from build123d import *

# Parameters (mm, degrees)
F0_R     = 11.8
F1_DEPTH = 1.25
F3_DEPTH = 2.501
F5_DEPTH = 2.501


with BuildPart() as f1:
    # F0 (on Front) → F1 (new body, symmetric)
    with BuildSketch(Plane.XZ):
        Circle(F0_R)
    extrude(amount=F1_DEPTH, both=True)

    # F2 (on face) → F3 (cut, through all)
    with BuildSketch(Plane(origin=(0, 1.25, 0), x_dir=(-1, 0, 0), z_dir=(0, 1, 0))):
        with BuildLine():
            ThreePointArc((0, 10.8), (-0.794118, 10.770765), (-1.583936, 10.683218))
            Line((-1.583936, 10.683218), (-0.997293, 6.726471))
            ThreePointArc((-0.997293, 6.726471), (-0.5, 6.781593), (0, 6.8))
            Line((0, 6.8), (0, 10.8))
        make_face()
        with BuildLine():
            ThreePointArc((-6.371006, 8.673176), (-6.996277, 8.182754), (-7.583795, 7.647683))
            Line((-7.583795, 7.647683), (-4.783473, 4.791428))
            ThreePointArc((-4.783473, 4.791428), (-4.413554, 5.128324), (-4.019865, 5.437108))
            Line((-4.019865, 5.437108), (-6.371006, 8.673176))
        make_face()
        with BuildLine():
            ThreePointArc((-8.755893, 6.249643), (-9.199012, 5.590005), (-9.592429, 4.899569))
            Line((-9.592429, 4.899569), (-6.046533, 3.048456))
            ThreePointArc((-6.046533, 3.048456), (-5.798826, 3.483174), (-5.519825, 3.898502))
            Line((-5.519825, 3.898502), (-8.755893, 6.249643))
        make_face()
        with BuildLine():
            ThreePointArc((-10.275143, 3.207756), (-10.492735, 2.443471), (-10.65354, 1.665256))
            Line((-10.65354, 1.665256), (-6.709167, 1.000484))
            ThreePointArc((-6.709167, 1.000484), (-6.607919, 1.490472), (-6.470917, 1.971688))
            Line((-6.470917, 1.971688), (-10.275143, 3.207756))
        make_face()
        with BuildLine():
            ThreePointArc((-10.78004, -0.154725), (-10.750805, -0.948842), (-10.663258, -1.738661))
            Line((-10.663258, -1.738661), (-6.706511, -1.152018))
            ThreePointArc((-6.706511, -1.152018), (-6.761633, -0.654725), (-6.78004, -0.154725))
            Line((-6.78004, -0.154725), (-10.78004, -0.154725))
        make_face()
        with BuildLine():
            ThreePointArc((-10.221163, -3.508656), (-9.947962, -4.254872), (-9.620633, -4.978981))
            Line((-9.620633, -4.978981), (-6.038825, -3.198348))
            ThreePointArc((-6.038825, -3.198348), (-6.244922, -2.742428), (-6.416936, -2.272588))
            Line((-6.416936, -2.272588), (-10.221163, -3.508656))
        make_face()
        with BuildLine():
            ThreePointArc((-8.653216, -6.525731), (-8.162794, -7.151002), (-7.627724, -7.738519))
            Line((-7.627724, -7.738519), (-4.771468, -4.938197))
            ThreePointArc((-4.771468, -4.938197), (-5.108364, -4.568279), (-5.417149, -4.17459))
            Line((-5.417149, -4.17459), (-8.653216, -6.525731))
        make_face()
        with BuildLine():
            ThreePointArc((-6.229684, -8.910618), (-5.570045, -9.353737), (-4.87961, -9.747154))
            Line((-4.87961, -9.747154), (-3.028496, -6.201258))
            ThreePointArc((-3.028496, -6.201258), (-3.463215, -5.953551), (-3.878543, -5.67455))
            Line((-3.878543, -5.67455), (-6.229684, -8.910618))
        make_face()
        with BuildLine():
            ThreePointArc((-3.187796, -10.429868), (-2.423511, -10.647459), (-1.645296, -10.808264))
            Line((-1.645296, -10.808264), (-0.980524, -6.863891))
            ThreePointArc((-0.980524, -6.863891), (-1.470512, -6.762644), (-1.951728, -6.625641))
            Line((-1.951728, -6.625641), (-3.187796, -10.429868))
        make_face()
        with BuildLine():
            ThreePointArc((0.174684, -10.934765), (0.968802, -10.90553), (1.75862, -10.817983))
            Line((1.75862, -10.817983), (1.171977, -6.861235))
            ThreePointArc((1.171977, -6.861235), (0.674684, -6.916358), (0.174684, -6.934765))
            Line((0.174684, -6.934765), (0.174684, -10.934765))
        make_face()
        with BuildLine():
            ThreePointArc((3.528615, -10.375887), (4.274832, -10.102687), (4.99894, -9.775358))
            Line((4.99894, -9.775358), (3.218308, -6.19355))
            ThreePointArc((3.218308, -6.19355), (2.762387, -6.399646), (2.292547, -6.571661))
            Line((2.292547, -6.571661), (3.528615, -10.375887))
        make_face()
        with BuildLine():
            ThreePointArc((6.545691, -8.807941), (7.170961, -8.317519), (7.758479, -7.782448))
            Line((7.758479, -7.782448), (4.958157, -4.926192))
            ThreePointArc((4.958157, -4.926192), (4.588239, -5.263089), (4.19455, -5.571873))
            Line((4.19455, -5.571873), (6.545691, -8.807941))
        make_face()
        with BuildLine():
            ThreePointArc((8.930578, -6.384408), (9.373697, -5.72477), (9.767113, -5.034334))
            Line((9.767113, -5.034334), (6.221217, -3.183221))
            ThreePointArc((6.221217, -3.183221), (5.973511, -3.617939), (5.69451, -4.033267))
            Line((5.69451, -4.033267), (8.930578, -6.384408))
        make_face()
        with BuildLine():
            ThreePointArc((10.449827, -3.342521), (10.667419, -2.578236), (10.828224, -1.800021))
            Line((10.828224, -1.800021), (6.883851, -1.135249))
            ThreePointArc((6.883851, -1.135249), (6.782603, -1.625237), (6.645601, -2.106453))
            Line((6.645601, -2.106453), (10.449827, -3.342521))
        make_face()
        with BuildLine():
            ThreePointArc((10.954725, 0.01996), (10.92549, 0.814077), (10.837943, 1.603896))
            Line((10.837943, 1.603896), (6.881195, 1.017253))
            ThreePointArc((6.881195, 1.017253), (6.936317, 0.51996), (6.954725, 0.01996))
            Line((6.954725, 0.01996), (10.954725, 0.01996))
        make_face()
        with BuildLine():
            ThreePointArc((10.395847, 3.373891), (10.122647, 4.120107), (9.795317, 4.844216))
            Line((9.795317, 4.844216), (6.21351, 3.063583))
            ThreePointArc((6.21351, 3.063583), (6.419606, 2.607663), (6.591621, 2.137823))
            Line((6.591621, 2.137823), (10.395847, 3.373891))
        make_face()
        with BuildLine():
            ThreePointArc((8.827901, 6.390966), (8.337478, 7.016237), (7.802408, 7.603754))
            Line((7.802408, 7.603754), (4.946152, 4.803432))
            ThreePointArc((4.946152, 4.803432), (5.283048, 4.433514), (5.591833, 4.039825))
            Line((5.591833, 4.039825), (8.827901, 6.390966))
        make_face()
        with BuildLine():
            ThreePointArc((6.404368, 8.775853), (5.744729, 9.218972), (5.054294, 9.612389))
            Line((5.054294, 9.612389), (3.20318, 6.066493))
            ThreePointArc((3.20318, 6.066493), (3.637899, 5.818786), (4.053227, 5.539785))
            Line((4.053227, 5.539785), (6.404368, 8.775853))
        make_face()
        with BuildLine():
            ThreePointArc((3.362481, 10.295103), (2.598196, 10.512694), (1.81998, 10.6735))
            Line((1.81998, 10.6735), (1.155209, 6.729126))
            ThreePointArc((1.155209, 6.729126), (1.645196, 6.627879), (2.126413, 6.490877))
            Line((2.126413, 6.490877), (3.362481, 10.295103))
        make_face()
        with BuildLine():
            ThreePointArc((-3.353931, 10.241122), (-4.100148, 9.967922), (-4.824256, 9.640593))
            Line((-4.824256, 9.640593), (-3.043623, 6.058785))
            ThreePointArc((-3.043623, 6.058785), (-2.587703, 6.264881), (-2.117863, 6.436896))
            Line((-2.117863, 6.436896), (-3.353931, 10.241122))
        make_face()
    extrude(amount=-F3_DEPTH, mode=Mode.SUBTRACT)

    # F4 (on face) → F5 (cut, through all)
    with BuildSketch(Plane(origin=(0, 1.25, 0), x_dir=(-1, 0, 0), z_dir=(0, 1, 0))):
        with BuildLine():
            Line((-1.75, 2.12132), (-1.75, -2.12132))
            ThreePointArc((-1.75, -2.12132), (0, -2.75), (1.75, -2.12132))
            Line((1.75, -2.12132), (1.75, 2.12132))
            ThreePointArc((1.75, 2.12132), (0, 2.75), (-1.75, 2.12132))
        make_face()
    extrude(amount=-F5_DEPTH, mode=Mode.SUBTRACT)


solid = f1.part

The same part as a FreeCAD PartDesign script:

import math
import FreeCAD as App
import Part
import Sketcher

V = App.Vector
Q = App.Units.Quantity

doc = App.newDocument("Part")
body = doc.addObject("PartDesign::Body", "Body")

# Sketch on XZ plane
sketch1 = body.newObject("Sketcher::SketchObject", "Sketch")
sketch1.AttachmentSupport = (doc.getObject("XZ_Plane"), [""])
sketch1.MapMode = "FlatFace"
sketch1.addGeometry(Part.Circle(V(0, 0, 0), V(0, 0, 1), 12), False)
sketch1.addConstraint([
    Sketcher.Constraint("Coincident", 0, 3, -1, 1),
    Sketcher.Constraint("Diameter", 0, 23.6),
])
pad1 = body.newObject("PartDesign::Pad", "Pad")
pad1.Profile = sketch1
pad1.Length = 2.5
pad1.Midplane = True

# Sketch on XZ plane
sketch2 = body.newObject("Sketcher::SketchObject", "Sketch001")
sketch2.AttachmentSupport = (doc.getObject("XZ_Plane"), [""])
sketch2.MapMode = "FlatFace"
sketch2.AttachmentOffset = App.Placement(V(0, 0, -1.25), App.Rotation())
sketch2.addGeometry([
    Part.ArcOfCircle(Part.Circle(V(0, 0, 0), V(0, 0, 1), 10.8), math.radians(81.57), math.radians(90)),  # 0
    Part.LineSegment(V(1.6, 10.7, 0), V(1, 6.7, 0)),  # 1
    Part.ArcOfCircle(Part.Circle(V(0, 0, 0), V(0, 0, 1), 6.8), math.radians(81.57), math.radians(90)),  # 2
    Part.LineSegment(V(0, 6.8, 0), V(0, 10.8, 0)),  # 3
    Part.ArcOfCircle(Part.Circle(V(0, -0.1, 0), V(0, 0, 1), 10.8), math.radians(45.57), math.radians(54)),  # 4
    Part.LineSegment(V(7.6, 7.6, 0), V(4.8, 4.8, 0)),  # 5
    Part.ArcOfCircle(Part.Circle(V(0, -0.1, 0), V(0, 0, 1), 6.8), math.radians(45.57), math.radians(54)),  # 6
    Part.LineSegment(V(4, 5.4, 0), V(6.4, 8.7, 0)),  # 7
    Part.ArcOfCircle(Part.Circle(V(0, -0.1, 0), V(0, 0, 1), 10.8), math.radians(27.57), math.radians(36)),  # 8
    Part.LineSegment(V(9.6, 4.9, 0), V(6, 3, 0)),  # 9
    Part.ArcOfCircle(Part.Circle(V(0, -0.1, 0), V(0, 0, 1), 6.8), math.radians(27.57), math.radians(36)),  # 10
    Part.LineSegment(V(5.5, 3.9, 0), V(8.8, 6.2, 0)),  # 11
    Part.ArcOfCircle(Part.Circle(V(0, -0.1, 0), V(0, 0, 1), 10.8), math.radians(9.57), math.radians(18)),  # 12
    Part.LineSegment(V(10.7, 1.7, 0), V(6.7, 1, 0)),  # 13
    Part.ArcOfCircle(Part.Circle(V(0, -0.1, 0), V(0, 0, 1), 6.8), math.radians(9.57), math.radians(18)),  # 14
    Part.LineSegment(V(6.5, 2, 0), V(10.3, 3.2, 0)),  # 15
    Part.ArcOfCircle(Part.Circle(V(0, -0.2, 0), V(0, 0, 1), 10.8), math.radians(-8.43), math.radians(0)),  # 16
    Part.LineSegment(V(10.7, -1.7, 0), V(6.7, -1.2, 0)),  # 17
    Part.ArcOfCircle(Part.Circle(V(0, -0.2, 0), V(0, 0, 1), 6.8), math.radians(-8.43), math.radians(0)),  # 18
    Part.LineSegment(V(6.8, -0.2, 0), V(10.8, -0.2, 0)),  # 19
    Part.ArcOfCircle(Part.Circle(V(-0.1, -0.2, 0), V(0, 0, 1), 10.8), math.radians(-26.43), math.radians(-18)),  # 20
    Part.LineSegment(V(9.6, -5, 0), V(6, -3.2, 0)),  # 21
    Part.ArcOfCircle(Part.Circle(V(0, -0.2, 0), V(0, 0, 1), 6.8), math.radians(-26.43), math.radians(-18)),  # 22
    Part.LineSegment(V(6.4, -2.3, 0), V(10.2, -3.5, 0)),  # 23
    Part.ArcOfCircle(Part.Circle(V(-0.1, -0.2, 0), V(0, 0, 1), 10.8), math.radians(-44.43), math.radians(-36)),  # 24
    Part.LineSegment(V(7.6, -7.7, 0), V(4.8, -4.9, 0)),  # 25
    Part.ArcOfCircle(Part.Circle(V(-0.1, -0.2, 0), V(0, 0, 1), 6.8), math.radians(-44.43), math.radians(-36)),  # 26
    Part.LineSegment(V(5.4, -4.2, 0), V(8.7, -6.5, 0)),  # 27
    Part.ArcOfCircle(Part.Circle(V(-0.1, -0.2, 0), V(0, 0, 1), 10.8), math.radians(-62.43), math.radians(-54)),  # 28
    Part.LineSegment(V(4.9, -9.7, 0), V(3, -6.2, 0)),  # 29
    Part.ArcOfCircle(Part.Circle(V(-0.1, -0.2, 0), V(0, 0, 1), 6.8), math.radians(-62.43), math.radians(-54)),  # 30
    Part.LineSegment(V(3.9, -5.7, 0), V(6.2, -8.9, 0)),  # 31
    Part.ArcOfCircle(Part.Circle(V(-0.1, -0.2, 0), V(0, 0, 1), 10.8), math.radians(-80.43), math.radians(-72)),  # 32
    Part.LineSegment(V(1.6, -10.8, 0), V(1, -6.9, 0)),  # 33
    Part.ArcOfCircle(Part.Circle(V(-0.1, -0.2, 0), V(0, 0, 1), 6.8), math.radians(-80.43), math.radians(-72)),  # 34
    Part.LineSegment(V(2, -6.6, 0), V(3.2, -10.4, 0)),  # 35
    Part.ArcOfCircle(Part.Circle(V(-0.2, -0.1, 0), V(0, 0, 1), 10.8), math.radians(-98.43), math.radians(-90)),  # 36
    Part.LineSegment(V(-1.8, -10.8, 0), V(-1.2, -6.9, 0)),  # 37
    Part.ArcOfCircle(Part.Circle(V(-0.2, -0.1, 0), V(0, 0, 1), 6.8), math.radians(-98.43), math.radians(-90)),  # 38
    Part.LineSegment(V(-0.2, -6.9, 0), V(-0.2, -10.9, 0)),  # 39
    Part.ArcOfCircle(Part.Circle(V(-0.2, -0.1, 0), V(0, 0, 1), 10.8), math.radians(-116.43), math.radians(-108)),  # 40
    Part.LineSegment(V(-5, -9.8, 0), V(-3.2, -6.2, 0)),  # 41
    Part.ArcOfCircle(Part.Circle(V(-0.2, -0.1, 0), V(0, 0, 1), 6.8), math.radians(-116.43), math.radians(-108)),  # 42
    Part.LineSegment(V(-2.3, -6.6, 0), V(-3.5, -10.4, 0)),  # 43
    Part.ArcOfCircle(Part.Circle(V(-0.2, -0.1, 0), V(0, 0, 1), 10.8), math.radians(-134.43), math.radians(-126)),  # 44
    Part.LineSegment(V(-7.8, -7.8, 0), V(-5, -4.9, 0)),  # 45
    Part.ArcOfCircle(Part.Circle(V(-0.2, -0.1, 0), V(0, 0, 1), 6.8), math.radians(-134.43), math.radians(-126)),  # 46
    Part.LineSegment(V(-4.2, -5.6, 0), V(-6.5, -8.8, 0)),  # 47
    Part.ArcOfCircle(Part.Circle(V(-0.2, 0, 0), V(0, 0, 1), 10.8), math.radians(-152.43), math.radians(-144)),  # 48
    Part.LineSegment(V(-9.8, -5, 0), V(-6.2, -3.2, 0)),  # 49
    Part.ArcOfCircle(Part.Circle(V(-0.2, 0, 0), V(0, 0, 1), 6.8), math.radians(-152.43), math.radians(-144)),  # 50
    Part.LineSegment(V(-5.7, -4, 0), V(-8.9, -6.4, 0)),  # 51
    Part.ArcOfCircle(Part.Circle(V(-0.2, 0, 0), V(0, 0, 1), 10.8), math.radians(-170.43), math.radians(-162)),  # 52
    Part.LineSegment(V(-10.8, -1.8, 0), V(-6.9, -1.1, 0)),  # 53
    Part.ArcOfCircle(Part.Circle(V(-0.2, 0, 0), V(0, 0, 1), 6.8), math.radians(-170.43), math.radians(-162)),  # 54
    Part.LineSegment(V(-6.6, -2.1, 0), V(-10.4, -3.3, 0)),  # 55
    Part.ArcOfCircle(Part.Circle(V(-0.2, 0, 0), V(0, 0, 1), 10.8), math.radians(171.57), math.radians(180)),  # 56
    Part.LineSegment(V(-10.8, 1.6, 0), V(-6.9, 1, 0)),  # 57
    Part.ArcOfCircle(Part.Circle(V(-0.2, 0, 0), V(0, 0, 1), 6.8), math.radians(171.57), math.radians(180)),  # 58
    Part.LineSegment(V(-7, 0, 0), V(-11, 0, 0)),  # 59
    Part.ArcOfCircle(Part.Circle(V(-0.1, 0, 0), V(0, 0, 1), 10.8), math.radians(153.57), math.radians(162)),  # 60
    Part.LineSegment(V(-9.8, 4.8, 0), V(-6.2, 3.1, 0)),  # 61
    Part.ArcOfCircle(Part.Circle(V(-0.1, 0, 0), V(0, 0, 1), 6.8), math.radians(153.57), math.radians(162)),  # 62
    Part.LineSegment(V(-6.6, 2.1, 0), V(-10.4, 3.4, 0)),  # 63
    Part.ArcOfCircle(Part.Circle(V(-0.1, 0, 0), V(0, 0, 1), 10.8), math.radians(135.57), math.radians(144)),  # 64
    Part.LineSegment(V(-7.8, 7.6, 0), V(-4.9, 4.8, 0)),  # 65
    Part.ArcOfCircle(Part.Circle(V(-0.1, 0, 0), V(0, 0, 1), 6.8), math.radians(135.57), math.radians(144)),  # 66
    Part.LineSegment(V(-5.6, 4, 0), V(-8.8, 6.4, 0)),  # 67
    Part.ArcOfCircle(Part.Circle(V(-0.1, 0, 0), V(0, 0, 1), 10.8), math.radians(117.57), math.radians(126)),  # 68
    Part.LineSegment(V(-5.1, 9.6, 0), V(-3.2, 6.1, 0)),  # 69
    Part.ArcOfCircle(Part.Circle(V(-0.1, 0, 0), V(0, 0, 1), 6.8), math.radians(117.57), math.radians(126)),  # 70
    Part.LineSegment(V(-4.1, 5.5, 0), V(-6.4, 8.8, 0)),  # 71
    Part.ArcOfCircle(Part.Circle(V(0, 0, 0), V(0, 0, 1), 10.8), math.radians(99.57), math.radians(108)),  # 72
    Part.LineSegment(V(-1.8, 10.7, 0), V(-1.2, 6.7, 0)),  # 73
    Part.ArcOfCircle(Part.Circle(V(0, 0, 0), V(0, 0, 1), 6.8), math.radians(99.57), math.radians(108)),  # 74
    Part.LineSegment(V(-2.1, 6.5, 0), V(-3.4, 10.3, 0)),  # 75
    Part.ArcOfCircle(Part.Circle(V(0, 0, 0), V(0, 0, 1), 10.8), math.radians(63.57), math.radians(72)),  # 76
    Part.LineSegment(V(4.8, 9.6, 0), V(3, 6.1, 0)),  # 77
    Part.ArcOfCircle(Part.Circle(V(0, 0, 0), V(0, 0, 1), 6.8), math.radians(63.57), math.radians(72)),  # 78
    Part.LineSegment(V(2.1, 6.4, 0), V(3.4, 10.2, 0)),  # 79
], False)
sketch2.addConstraint([
    Sketcher.Constraint("Coincident", 0, 1, 1, 1),
    Sketcher.Constraint("Coincident", 1, 2, 2, 1),
    Sketcher.Constraint("Coincident", 2, 2, 3, 1),
    Sketcher.Constraint("Coincident", 3, 2, 0, 2),
    Sketcher.Constraint("Coincident", 4, 1, 5, 1),
    Sketcher.Constraint("Coincident", 5, 2, 6, 1),
    Sketcher.Constraint("Coincident", 6, 2, 7, 1),
    Sketcher.Constraint("Coincident", 7, 2, 4, 2),
    Sketcher.Constraint("Coincident", 8, 1, 9, 1),
    Sketcher.Constraint("Coincident", 9, 2, 10, 1),
    Sketcher.Constraint("Coincident", 10, 2, 11, 1),
    Sketcher.Constraint("Coincident", 11, 2, 8, 2),
    Sketcher.Constraint("Coincident", 12, 1, 13, 1),
    Sketcher.Constraint("Coincident", 13, 2, 14, 1),
    Sketcher.Constraint("Coincident", 14, 2, 15, 1),
    Sketcher.Constraint("Coincident", 15, 2, 12, 2),
    Sketcher.Constraint("Coincident", 16, 1, 17, 1),
    Sketcher.Constraint("Coincident", 17, 2, 18, 1),
    Sketcher.Constraint("Coincident", 18, 2, 19, 1),
    Sketcher.Constraint("Coincident", 19, 2, 16, 2),
    Sketcher.Constraint("Coincident", 20, 1, 21, 1),
    Sketcher.Constraint("Coincident", 21, 2, 22, 1),
    Sketcher.Constraint("Coincident", 22, 2, 23, 1),
    Sketcher.Constraint("Coincident", 23, 2, 20, 2),
    Sketcher.Constraint("Coincident", 24, 1, 25, 1),
    Sketcher.Constraint("Coincident", 25, 2, 26, 1),
    Sketcher.Constraint("Coincident", 26, 2, 27, 1),
    Sketcher.Constraint("Coincident", 27, 2, 24, 2),
    Sketcher.Constraint("Coincident", 28, 1, 29, 1),
    Sketcher.Constraint("Coincident", 29, 2, 30, 1),
    Sketcher.Constraint("Coincident", 30, 2, 31, 1),
    Sketcher.Constraint("Coincident", 31, 2, 28, 2),
    Sketcher.Constraint("Coincident", 32, 1, 33, 1),
    Sketcher.Constraint("Coincident", 33, 2, 34, 1),
    Sketcher.Constraint("Coincident", 34, 2, 35, 1),
    Sketcher.Constraint("Coincident", 35, 2, 32, 2),
    Sketcher.Constraint("Coincident", 36, 1, 37, 1),
    Sketcher.Constraint("Coincident", 37, 2, 38, 1),
    Sketcher.Constraint("Coincident", 38, 2, 39, 1),
    Sketcher.Constraint("Coincident", 39, 2, 36, 2),
    Sketcher.Constraint("Coincident", 40, 1, 41, 1),
    Sketcher.Constraint("Coincident", 41, 2, 42, 1),
    Sketcher.Constraint("Coincident", 42, 2, 43, 1),
    Sketcher.Constraint("Coincident", 43, 2, 40, 2),
    Sketcher.Constraint("Coincident", 44, 1, 45, 1),
    Sketcher.Constraint("Coincident", 45, 2, 46, 1),
    Sketcher.Constraint("Coincident", 46, 2, 47, 1),
    Sketcher.Constraint("Coincident", 47, 2, 44, 2),
    Sketcher.Constraint("Coincident", 48, 1, 49, 1),
    Sketcher.Constraint("Coincident", 49, 2, 50, 1),
    Sketcher.Constraint("Coincident", 50, 2, 51, 1),
    Sketcher.Constraint("Coincident", 51, 2, 48, 2),
    Sketcher.Constraint("Coincident", 52, 1, 53, 1),
    Sketcher.Constraint("Coincident", 53, 2, 54, 1),
    Sketcher.Constraint("Coincident", 54, 2, 55, 1),
    Sketcher.Constraint("Coincident", 55, 2, 52, 2),
    Sketcher.Constraint("Coincident", 56, 1, 57, 1),
    Sketcher.Constraint("Coincident", 57, 2, 58, 1),
    Sketcher.Constraint("Coincident", 58, 2, 59, 1),
    Sketcher.Constraint("Coincident", 59, 2, 56, 2),
    Sketcher.Constraint("Coincident", 60, 1, 61, 1),
    Sketcher.Constraint("Coincident", 61, 2, 62, 1),
    Sketcher.Constraint("Coincident", 62, 2, 63, 1),
    Sketcher.Constraint("Coincident", 63, 2, 60, 2),
    Sketcher.Constraint("Coincident", 64, 1, 65, 1),
    Sketcher.Constraint("Coincident", 65, 2, 66, 1),
    Sketcher.Constraint("Coincident", 66, 2, 67, 1),
    Sketcher.Constraint("Coincident", 67, 2, 64, 2),
    Sketcher.Constraint("Coincident", 68, 1, 69, 1),
    Sketcher.Constraint("Coincident", 69, 2, 70, 1),
    Sketcher.Constraint("Coincident", 70, 2, 71, 1),
    Sketcher.Constraint("Coincident", 71, 2, 68, 2),
    Sketcher.Constraint("Coincident", 72, 1, 73, 1),
    Sketcher.Constraint("Coincident", 73, 2, 74, 1),
    Sketcher.Constraint("Coincident", 74, 2, 75, 1),
    Sketcher.Constraint("Coincident", 75, 2, 72, 2),
    Sketcher.Constraint("Coincident", 76, 1, 77, 1),
    Sketcher.Constraint("Coincident", 77, 2, 78, 1),
    Sketcher.Constraint("Coincident", 78, 2, 79, 1),
    Sketcher.Constraint("Coincident", 79, 2, 76, 2),
    Sketcher.Constraint("Vertical", 3),
    Sketcher.Constraint("Horizontal", 19),
    Sketcher.Constraint("Vertical", 39),
    Sketcher.Constraint("Horizontal", 59),
    Sketcher.Constraint("Coincident", 66, 3, 64, 3),
    Sketcher.Constraint("Equal", 2, 18),
    Sketcher.Constraint("Equal", 0, 36),
    Sketcher.Constraint("Equal", 12, 52),
    Sketcher.Constraint("Equal", 14, 54),
    Sketcher.Constraint("Equal", 16, 56),
    Sketcher.Constraint("Equal", 26, 66),
    Sketcher.Constraint("Equal", 28, 68),
    Sketcher.Constraint("Equal", 30, 70),
    Sketcher.Constraint("Equal", 40, 76),
    Sketcher.Constraint("Equal", 62, 78),
    Sketcher.Constraint("PointOnObject", 2, 2, -2),
    Sketcher.Constraint("Perpendicular", 1, 17),
    Sketcher.Constraint("Perpendicular", 5, 25),
    Sketcher.Constraint("Perpendicular", 7, 27),
    Sketcher.Constraint("Perpendicular", 9, 29),
    Sketcher.Constraint("Perpendicular", 11, 31),
    Sketcher.Constraint("Perpendicular", 13, 33),
    Sketcher.Constraint("Perpendicular", 15, 35),
    Sketcher.Constraint("Perpendicular", 17, 37),
    Sketcher.Constraint("Perpendicular", 21, 41),
    Sketcher.Constraint("Perpendicular", 23, 43),
    Sketcher.Constraint("Perpendicular", 25, 45),
    Sketcher.Constraint("Perpendicular", 27, 47),
    Sketcher.Constraint("Perpendicular", 29, 49),
    Sketcher.Constraint("Perpendicular", 31, 51),
    Sketcher.Constraint("Perpendicular", 33, 53),
    Sketcher.Constraint("Perpendicular", 35, 55),
    Sketcher.Constraint("Perpendicular", 37, 57),
    Sketcher.Constraint("Perpendicular", 41, 61),
    Sketcher.Constraint("Perpendicular", 43, 63),
    Sketcher.Constraint("Perpendicular", 45, 65),
    Sketcher.Constraint("Perpendicular", 47, 67),
    Sketcher.Constraint("Perpendicular", 49, 69),
    Sketcher.Constraint("Perpendicular", 51, 71),
    Sketcher.Constraint("Perpendicular", 53, 73),
    Sketcher.Constraint("Perpendicular", 55, 75),
    Sketcher.Constraint("Perpendicular", 61, 77),
    Sketcher.Constraint("Perpendicular", 63, 79),
    Sketcher.Constraint("Horizontal", 16, 3, 18, 2),
    Sketcher.Constraint("Horizontal", 56, 3, 58, 2),
    Sketcher.Constraint("Vertical", 0, 3, 2, 3),
    Sketcher.Constraint("Equal", 19, 59),
    Sketcher.Constraint("Equal", 59, 3),
    Sketcher.Constraint("Equal", 3, 39),
    Sketcher.Constraint("Equal", 1, 5),
    Sketcher.Constraint("Equal", 5, 7),
    Sketcher.Constraint("Equal", 7, 9),
    Sketcher.Constraint("Equal", 9, 11),
    Sketcher.Constraint("Equal", 11, 13),
    Sketcher.Constraint("Equal", 13, 15),
    Sketcher.Constraint("Equal", 15, 17),
    Sketcher.Constraint("Equal", 17, 21),
    Sketcher.Constraint("Equal", 21, 23),
    Sketcher.Constraint("Equal", 23, 25),
    Sketcher.Constraint("Equal", 25, 27),
    Sketcher.Constraint("Equal", 27, 29),
    Sketcher.Constraint("Equal", 29, 31),
    Sketcher.Constraint("Equal", 31, 33),
    Sketcher.Constraint("Equal", 33, 35),
    Sketcher.Constraint("Equal", 35, 37),
    Sketcher.Constraint("Equal", 37, 41),
    Sketcher.Constraint("Equal", 41, 43),
    Sketcher.Constraint("Equal", 43, 45),
    Sketcher.Constraint("Equal", 45, 47),
    Sketcher.Constraint("Equal", 47, 49),
    Sketcher.Constraint("Equal", 49, 51),
    Sketcher.Constraint("Equal", 51, 53),
    Sketcher.Constraint("Equal", 53, 55),
    Sketcher.Constraint("Equal", 55, 57),
    Sketcher.Constraint("Equal", 57, 61),
    Sketcher.Constraint("Equal", 61, 63),
    Sketcher.Constraint("Equal", 63, 65),
    Sketcher.Constraint("Equal", 67, 69),
    Sketcher.Constraint("Equal", 69, 71),
    Sketcher.Constraint("Equal", 71, 73),
    Sketcher.Constraint("Equal", 73, 75),
    Sketcher.Constraint("Equal", 75, 77),
    Sketcher.Constraint("Equal", 77, 79),
    Sketcher.Constraint("Radius", 40, 10.799999),
    Sketcher.Constraint("DistanceX", 19, 1, 19, 2, 4.0),
    Sketcher.Constraint("Angle", 7, Q("54 deg")),
    Sketcher.Constraint("Angle", 11, Q("36 deg")),
    Sketcher.Constraint("Angle", 15, Q("18.000001 deg")),
    Sketcher.Constraint("Angle", 23, Q("-17.999996 deg")),
    Sketcher.Constraint("Distance", 1, 4.0),
    Sketcher.Constraint("DistanceY", -1, 1, 2, 2, 6.8),
    Sketcher.Constraint("Radius", 6, 6.80003),
    Sketcher.Constraint("Radius", 8, 10.799928),
    Sketcher.Constraint("Radius", 26, 6.80005),
    Sketcher.Constraint("Radius", 30, 6.79997),
    Sketcher.Constraint("Radius", 42, 6.800151),
    Sketcher.Constraint("Radius", 46, 6.799769),
    Sketcher.Constraint("Radius", 50, 6.799891),
    Sketcher.Constraint("Radius", 58, 6.800161),
    Sketcher.Constraint("Radius", 62, 6.800069),
    Sketcher.Constraint("Radius", 74, 6.799941),
    Sketcher.Constraint("Radius", 0, 10.799965),
    Sketcher.Constraint("Radius", 4, 10.799905),
    Sketcher.Constraint("Radius", 10, 6.800055),
    Sketcher.Constraint("Radius", 12, 10.799916),
    Sketcher.Constraint("Radius", 14, 6.800035),
    Sketcher.Constraint("Radius", 16, 10.799992),
    Sketcher.Constraint("Radius", 20, 10.800314),
    Sketcher.Constraint("Radius", 22, 6.799728),
    Sketcher.Constraint("Radius", 24, 10.799908),
    Sketcher.Constraint("Radius", 28, 10.800122),
    Sketcher.Constraint("Radius", 32, 10.800092),
    Sketcher.Constraint("Radius", 34, 6.799678),
    Sketcher.Constraint("Radius", 38, 6.799793),
    Sketcher.Constraint("Radius", 44, 10.800014),
    Sketcher.Constraint("Radius", 48, 10.799764),
    Sketcher.Constraint("Radius", 60, 10.799972),
    Sketcher.Constraint("Radius", 72, 10.800244),
    Sketcher.Constraint("DistanceY", 8, 3, -1, 1, 0.098401),
    Sketcher.Constraint("DistanceX", -1, 1, 14, 3, 0.003699),
    Sketcher.Constraint("DistanceX", 24, 3, -1, 1, 0.084098),
    Sketcher.Constraint("DistanceY", 36, 3, -1, 1, 0.1348),
    Sketcher.Constraint("DistanceX", 44, 3, -1, 1, 0.197599),
    Sketcher.Constraint("DistanceX", 52, 3, -1, 1, 0.178498),
    Sketcher.Constraint("DistanceX", 54, 2, -1, 1, 6.645601),
    Sketcher.Constraint("DistanceX", 67, 2, -1, 1, 8.827901),
    Sketcher.Constraint("DistanceY", -1, 1, 72, 1, 10.6735),
    Sketcher.Constraint("DistanceX", -1, 1, 4, 3, 0.022988),
    Sketcher.Constraint("DistanceX", -1, 1, 8, 3, 0.018572),
    Sketcher.Constraint("DistanceY", 12, 3, -1, 1, 0.129609),
    Sketcher.Constraint("DistanceY", 18, 3, -1, 1, 0.15473),
    Sketcher.Constraint("DistanceY", 20, 3, -1, 1, 0.17115),
    Sketcher.Constraint("DistanceY", 24, 3, -1, 1, 0.177712),
    Sketcher.Constraint("DistanceY", 28, 3, -1, 1, 0.173132),
    Sketcher.Constraint("DistanceX", 30, 3, -1, 1, 0.118381),
    Sketcher.Constraint("DistanceX", 34, 3, -1, 1, 0.149511),
    Sketcher.Constraint("DistanceY", 34, 3, -1, 1, 0.158771),
    Sketcher.Constraint("DistanceY", 44, 3, -1, 1, 0.070548),
    Sketcher.Constraint("DistanceY", 54, 3, -1, 1, 0.005128),
    Sketcher.Constraint("DistanceY", -1, 1, 56, 3, 0.019961),
    Sketcher.Constraint("DistanceY", -1, 1, 62, 3, 0.036481),
    Sketcher.Constraint("DistanceX", 66, 3, -1, 1, 0.090481),
    Sketcher.Constraint("DistanceY", -1, 1, 66, 3, 0.04285),
    Sketcher.Constraint("DistanceX", 68, 3, -1, 1, 0.056221),
    Sketcher.Constraint("DistanceX", 72, 3, -1, 1, 0.025039),
    Sketcher.Constraint("DistanceY", -1, 1, 74, 3, 0.023748),
    Sketcher.Constraint("DistanceX", -1, 1, 76, 3, 0.01655),
    Sketcher.Constraint("DistanceY", -1, 1, 1, 2, 6.726471),
    Sketcher.Constraint("DistanceY", -1, 1, 6, 2, 5.437108),
    Sketcher.Constraint("DistanceX", -1, 1, 8, 1, 9.592429),
    Sketcher.Constraint("DistanceX", -1, 1, 12, 1, 10.65354),
    Sketcher.Constraint("DistanceY", -1, 1, 14, 2, 1.971688),
    Sketcher.Constraint("DistanceX", -1, 1, 16, 1, 10.663258),
    Sketcher.Constraint("DistanceY", 16, 1, -1, 1, 1.738661),
    Sketcher.Constraint("DistanceX", -1, 1, 17, 2, 6.706511),
    Sketcher.Constraint("DistanceY", 20, 1, -1, 1, 4.978981),
    Sketcher.Constraint("DistanceY", 21, 2, -1, 1, 3.198348),
    Sketcher.Constraint("DistanceY", 24, 1, -1, 1, 7.738519),
    Sketcher.Constraint("DistanceX", -1, 1, 26, 2, 5.417149),
    Sketcher.Constraint("DistanceX", -1, 1, 28, 1, 4.87961),
    Sketcher.Constraint("DistanceY", 30, 2, -1, 1, 5.67455),
    Sketcher.Constraint("DistanceY", 33, 2, -1, 1, 6.863891),
    Sketcher.Constraint("DistanceX", -1, 1, 34, 2, 1.951728),
    Sketcher.Constraint("DistanceX", 36, 1, -1, 1, 1.75862),
    Sketcher.Constraint("DistanceX", 40, 1, -1, 1, 4.99894),
    Sketcher.Constraint("DistanceY", 40, 1, -1, 1, 9.775358),
    Sketcher.Constraint("DistanceY", 42, 2, -1, 1, 6.571661),
    Sketcher.Constraint("DistanceX", 44, 1, -1, 1, 7.758479),
    Sketcher.Constraint("DistanceX", 46, 2, -1, 1, 4.19455),
    Sketcher.Constraint("DistanceY", 49, 2, -1, 1, 3.183221),
    Sketcher.Constraint("DistanceX", 50, 2, -1, 1, 5.69451),
    Sketcher.Constraint("DistanceY", 52, 1, -1, 1, 1.800021),
    Sketcher.Constraint("DistanceX", 53, 2, -1, 1, 6.883851),
    Sketcher.Constraint("DistanceX", 61, 2, -1, 1, 6.21351),
    Sketcher.Constraint("DistanceX", 62, 2, -1, 1, 6.591621),
    Sketcher.Constraint("DistanceY", -1, 1, 63, 2, 3.373891),
    Sketcher.Constraint("DistanceX", 65, 2, -1, 1, 4.946152),
    Sketcher.Constraint("DistanceY", -1, 1, 68, 1, 9.612389),
    Sketcher.Constraint("DistanceX", 69, 2, -1, 1, 3.20318),
    Sketcher.Constraint("DistanceX", 75, 2, -1, 1, 3.362481),
    Sketcher.Constraint("DistanceX", -1, 1, 79, 2, 3.353931),
    Sketcher.Constraint("DistanceY", 4, 3, -1, 1, 0.064136),
    Sketcher.Constraint("DistanceX", 20, 3, -1, 1, 0.050537),
    Sketcher.Constraint("DistanceX", 36, 3, -1, 1, 0.174687),
    Sketcher.Constraint("DistanceX", 40, 3, -1, 1, 0.191234),
    Sketcher.Constraint("DistanceX", 48, 3, -1, 1, 0.193393),
    Sketcher.Constraint("DistanceY", 48, 3, -1, 1, 0.036455),
    Sketcher.Constraint("DistanceX", 56, 3, -1, 1, 0.154733),
    Sketcher.Constraint("DistanceY", -1, 1, 68, 3, 0.038367),
    Sketcher.Constraint("DistanceY", 76, 3, -1, 1, 0.030288),
    Sketcher.Constraint("DistanceX", -1, 1, 0, 1, 1.583936),
    Sketcher.Constraint("DistanceX", -1, 1, 4, 1, 7.583795),
    Sketcher.Constraint("DistanceX", -1, 1, 5, 2, 4.783473),
    Sketcher.Constraint("DistanceX", -1, 1, 10, 2, 5.519825),
    Sketcher.Constraint("DistanceX", -1, 1, 22, 2, 6.416936),
    Sketcher.Constraint("DistanceX", 38, 2, -1, 1, 0.174684),
    Sketcher.Constraint("DistanceX", 56, 1, -1, 1, 10.837943),
    Sketcher.Constraint("DistanceX", 70, 2, -1, 1, 4.053227),
    Sketcher.Constraint("DistanceX", -1, 1, 76, 1, 4.824256),
])
pocket1 = body.newObject("PartDesign::Pocket", "Pocket")
pocket1.Profile = sketch2
pocket1.Type = "ThroughAll"
pocket1.Reversed = True

# Sketch on XZ plane
sketch3 = body.newObject("Sketcher::SketchObject", "Sketch002")
sketch3.AttachmentSupport = (doc.getObject("XZ_Plane"), [""])
sketch3.MapMode = "FlatFace"
sketch3.AttachmentOffset = App.Placement(V(0, 0, -1.25), App.Rotation())
sketch3.addGeometry([
    Part.LineSegment(V(1.8, 2.1, 0), V(1.8, -2.1, 0)),
    Part.ArcOfCircle(Part.Circle(V(0, 0, 0), V(0, 0, 1), 2.7), math.radians(-130), math.radians(-50)),
    Part.LineSegment(V(-1.8, -2.1, 0), V(-1.8, 2.1, 0)),
    Part.ArcOfCircle(Part.Circle(V(0, 0, 0), V(0, 0, 1), 2.7), math.radians(50), math.radians(130)),
], False)
sketch3.addConstraint([
    Sketcher.Constraint("Coincident", 0, 2, 1, 2),
    Sketcher.Constraint("Coincident", 1, 1, 2, 1),
    Sketcher.Constraint("Coincident", 2, 2, 3, 2),
    Sketcher.Constraint("Coincident", 3, 1, 0, 1),
    Sketcher.Constraint("Vertical", 0),
    Sketcher.Constraint("Vertical", 2),
    Sketcher.Constraint("Coincident", 1, 3, -1, 1),
    Sketcher.Constraint("Coincident", 3, 3, -1, 1),
    Sketcher.Constraint("Equal", 1, 3),
    Sketcher.Constraint("Horizontal", 0, 2, 1, 1),
    Sketcher.Constraint("Radius", 1, 2.749999),
    Sketcher.Constraint("DistanceX", 1, 1, 0, 2, 3.5),
])
pocket2 = body.newObject("PartDesign::Pocket", "Pocket001")
pocket2.Profile = sketch3
pocket2.Type = "ThroughAll"
pocket2.Reversed = True

doc.recompute()
